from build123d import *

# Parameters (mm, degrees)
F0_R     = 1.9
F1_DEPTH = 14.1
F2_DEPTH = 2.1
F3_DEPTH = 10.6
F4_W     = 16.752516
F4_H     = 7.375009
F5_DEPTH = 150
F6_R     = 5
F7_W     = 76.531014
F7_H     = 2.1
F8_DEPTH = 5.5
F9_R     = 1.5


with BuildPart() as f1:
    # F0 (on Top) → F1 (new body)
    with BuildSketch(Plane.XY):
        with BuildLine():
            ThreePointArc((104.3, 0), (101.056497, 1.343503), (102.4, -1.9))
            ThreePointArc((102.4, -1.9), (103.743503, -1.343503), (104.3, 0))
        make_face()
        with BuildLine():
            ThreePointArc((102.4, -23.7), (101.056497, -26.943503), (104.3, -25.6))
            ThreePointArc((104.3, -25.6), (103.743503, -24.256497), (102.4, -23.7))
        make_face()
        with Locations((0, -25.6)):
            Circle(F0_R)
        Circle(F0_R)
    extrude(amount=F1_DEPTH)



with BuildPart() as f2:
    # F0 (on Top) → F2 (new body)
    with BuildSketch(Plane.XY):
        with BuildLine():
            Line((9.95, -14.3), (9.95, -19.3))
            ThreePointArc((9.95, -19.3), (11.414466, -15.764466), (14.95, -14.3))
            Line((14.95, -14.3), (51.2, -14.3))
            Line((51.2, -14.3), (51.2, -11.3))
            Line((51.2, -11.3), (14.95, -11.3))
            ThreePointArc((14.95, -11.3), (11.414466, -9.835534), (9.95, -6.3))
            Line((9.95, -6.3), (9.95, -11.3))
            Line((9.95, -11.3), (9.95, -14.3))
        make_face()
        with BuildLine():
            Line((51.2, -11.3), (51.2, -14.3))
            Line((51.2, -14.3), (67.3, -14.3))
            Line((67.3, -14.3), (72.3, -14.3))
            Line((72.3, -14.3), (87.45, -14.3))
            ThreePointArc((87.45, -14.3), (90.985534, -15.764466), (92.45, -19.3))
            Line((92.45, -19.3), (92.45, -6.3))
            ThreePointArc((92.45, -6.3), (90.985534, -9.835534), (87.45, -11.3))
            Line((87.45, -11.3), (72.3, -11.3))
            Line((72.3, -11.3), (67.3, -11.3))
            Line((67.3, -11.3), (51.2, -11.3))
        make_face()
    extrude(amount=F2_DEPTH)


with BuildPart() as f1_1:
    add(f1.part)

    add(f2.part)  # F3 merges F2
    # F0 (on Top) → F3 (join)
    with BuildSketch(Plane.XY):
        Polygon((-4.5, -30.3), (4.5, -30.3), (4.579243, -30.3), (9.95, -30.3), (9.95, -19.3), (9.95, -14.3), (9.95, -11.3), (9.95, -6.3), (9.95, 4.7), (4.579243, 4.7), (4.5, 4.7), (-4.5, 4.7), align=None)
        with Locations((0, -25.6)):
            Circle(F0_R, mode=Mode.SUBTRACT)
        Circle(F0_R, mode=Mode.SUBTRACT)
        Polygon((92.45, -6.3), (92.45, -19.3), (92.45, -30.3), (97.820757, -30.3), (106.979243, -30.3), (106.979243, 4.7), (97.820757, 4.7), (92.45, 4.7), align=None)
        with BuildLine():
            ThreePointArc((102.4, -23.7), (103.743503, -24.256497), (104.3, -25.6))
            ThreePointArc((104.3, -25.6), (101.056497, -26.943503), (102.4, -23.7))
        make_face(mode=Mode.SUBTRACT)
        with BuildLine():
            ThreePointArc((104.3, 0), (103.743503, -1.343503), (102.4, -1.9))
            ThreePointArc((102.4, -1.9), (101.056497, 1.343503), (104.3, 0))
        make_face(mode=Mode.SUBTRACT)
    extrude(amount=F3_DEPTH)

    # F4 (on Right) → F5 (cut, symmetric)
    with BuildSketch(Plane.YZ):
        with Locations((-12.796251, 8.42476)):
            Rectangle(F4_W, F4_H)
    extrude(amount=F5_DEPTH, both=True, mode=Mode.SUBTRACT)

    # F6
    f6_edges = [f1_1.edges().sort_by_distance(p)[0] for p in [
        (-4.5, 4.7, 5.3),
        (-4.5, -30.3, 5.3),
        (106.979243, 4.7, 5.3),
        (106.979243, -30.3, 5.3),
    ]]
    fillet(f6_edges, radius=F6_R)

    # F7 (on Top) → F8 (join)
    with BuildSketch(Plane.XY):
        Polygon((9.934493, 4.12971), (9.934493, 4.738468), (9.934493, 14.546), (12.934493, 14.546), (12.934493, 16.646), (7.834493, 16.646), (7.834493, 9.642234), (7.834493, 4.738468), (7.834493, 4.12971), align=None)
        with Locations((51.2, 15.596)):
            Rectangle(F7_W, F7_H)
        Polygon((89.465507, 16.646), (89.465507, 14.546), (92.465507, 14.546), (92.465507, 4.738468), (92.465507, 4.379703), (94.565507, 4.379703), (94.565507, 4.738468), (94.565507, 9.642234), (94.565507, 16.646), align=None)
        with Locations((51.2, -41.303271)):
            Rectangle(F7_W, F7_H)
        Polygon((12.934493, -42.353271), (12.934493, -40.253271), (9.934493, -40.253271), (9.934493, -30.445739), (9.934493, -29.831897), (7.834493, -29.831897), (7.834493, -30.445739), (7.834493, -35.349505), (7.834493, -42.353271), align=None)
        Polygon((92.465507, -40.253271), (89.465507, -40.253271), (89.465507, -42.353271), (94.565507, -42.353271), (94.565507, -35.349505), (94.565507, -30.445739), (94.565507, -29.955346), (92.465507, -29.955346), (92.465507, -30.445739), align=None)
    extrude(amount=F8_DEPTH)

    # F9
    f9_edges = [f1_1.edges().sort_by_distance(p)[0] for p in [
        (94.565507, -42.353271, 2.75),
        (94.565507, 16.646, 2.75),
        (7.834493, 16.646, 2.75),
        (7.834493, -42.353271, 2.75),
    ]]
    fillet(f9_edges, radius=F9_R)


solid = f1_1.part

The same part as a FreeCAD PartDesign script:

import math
import FreeCAD as App
import Part
import Sketcher
from FreeCAD import Vector
Q = App.Units.Quantity


def edges_at(feature, points):
    """Names of the edges that pass closest to the given points."""
    edges = feature.Shape.Edges
    near = lambda p: min(range(len(edges)), key=lambda i: edges[i].distToShape(Part.Vertex(*p))[0])
    return sorted({f"Edge{near(p) + 1}" for p in points})


def add_polygon(sketch, points):
    """Adds a closed chain of lines whose ends are joined by coincident constraints."""
    first, n = sketch.GeometryCount, len(points)
    for a, b in zip(points, points[1:] + points[:1]):
        sketch.addGeometry(Part.LineSegment(App.Vector(*a, 0), App.Vector(*b, 0)), False)
    for i in range(n):
        sketch.addConstraint(Sketcher.Constraint("Coincident", first + i, 2, first + (i + 1) % n, 1))

doc = App.newDocument("Part")
params = doc.addObject("Spreadsheet::Sheet", "Params")
for row, (alias, value) in enumerate([
    ("sketch1_diameter", "3.8 mm"),
    ("pad1_length", "14.1 mm"),
    ("sketch2_radius", "5 mm"),
    ("sketch2_height", "13 mm"),
    ("sketch2_width", "72.5 mm"),
    ("pad2_length", "2.1 mm"),
    ("sketch3_diameter", "3.8 mm"),
    ("sketch3_height", "35 mm"),
    ("sketch3_width", "14.45 mm"),
    ("pad3_length", "10.6 mm"),
    ("pocket1_length", "300 mm"),
    ("fillet_radius", "5 mm"),
    ("sketch5_width", "2.1 mm"),
    ("pad4_length", "5.5 mm"),
    ("fillet2_radius", "1.5 mm"),
], start=1):
    params.set(f"A{row}", alias)
    params.set(f"B{row}", "=" + value)
    params.setAlias(f"B{row}", alias)

body = doc.addObject("PartDesign::Body", "Body")
body.AllowCompound = True

# Sketch on XY plane
sketch1 = doc.addObject("Sketcher::SketchObject", "Sketch")
body.addObject(sketch1)
sketch1.AttachmentSupport = (doc.XY_Plane, [""])
sketch1.MapMode = "FlatFace"
sketch1.addGeometry([
    Part.ArcOfCircle(Part.Circle(Vector(102.4, 0, 0), Vector(0, 0, 1), 1.9), math.radians(0), math.radians(270)),  # 0
    Part.ArcOfCircle(Part.Circle(Vector(102.4, 0, 0), Vector(0, 0, 1), 1.9), math.radians(-90), math.radians(0)),  # 1
    Part.ArcOfCircle(Part.Circle(Vector(102.4, -25.6, 0), Vector(0, 0, 1), 1.9), math.radians(90), math.radians(360)),  # 2
    Part.ArcOfCircle(Part.Circle(Vector(102.4, -25.6, 0), Vector(0, 0, 1), 1.9), math.radians(0), math.radians(90)),  # 3
    Part.Circle(Vector(0, -25.6, 0), Vector(0, 0, 1), 1.9),  # 4
    Part.Circle(Vector(0, 0, 0), Vector(0, 0, 1), 1.9),  # 5
], False)
sketch1.addConstraint([
    Sketcher.Constraint("Tangent", 0, 1, 1, 2),
    Sketcher.Constraint("Coincident", 1, 1, 0, 2),
    Sketcher.Constraint("Tangent", 2, 1, 3, 2),
    Sketcher.Constraint("Coincident", 3, 1, 2, 2),
    Sketcher.Constraint("Coincident", 5, 3, -1, 1),
    Sketcher.Constraint("Equal", 1, 2),
    Sketcher.Constraint("Equal", 3, 4),
    Sketcher.Constraint("Equal", 4, 5),
    Sketcher.Constraint("PointOnObject", 0, 3, -1),
    Sketcher.Constraint("PointOnObject", 4, 3, -2),
    Sketcher.Constraint("PointOnObject", 0, 1, -1),
    Sketcher.Constraint("Horizontal", 3, 3, 4, 3),
    Sketcher.Constraint("Horizontal", 4, 3, 3, 1),
    Sketcher.Constraint("Vertical", 1, 3, 2, 3),
    Sketcher.Constraint("Vertical", 3, 3, 1, 1),
    Sketcher.Constraint("Vertical", 1, 1, 2, 1),
    Sketcher.Constraint("Diameter", 4, Q("3.8 mm")),
    Sketcher.Constraint("DistanceX", -1, 1, 0, 3, Q("102.4 mm")),
    Sketcher.Constraint("DistanceY", 2, 3, -1, 1, Q("25.6 mm")),
])
sketch1.setExpression("Constraints[16]", "Params.sketch1_diameter")
pad1 = doc.addObject("PartDesign::Pad", "Pad")
body.addObject(pad1)
pad1.Profile = sketch1
pad1.setExpression("Length", "Params.pad1_length")
body2 = doc.addObject("PartDesign::Body", "Body001")

# Sketch on XY plane
sketch2 = doc.addObject("Sketcher::SketchObject", "Sketch001")
body2.addObject(sketch2)
sketch2.AttachmentSupport = (doc.getObject("XY_Plane001"), [""])
sketch2.MapMode = "FlatFace"
sketch2.addGeometry([
    Part.ArcOfCircle(Part.Circle(Vector(14.9, -19.3, 0), Vector(0, 0, 1), 5), math.radians(90), math.radians(180)),  # 0
    Part.LineSegment(Vector(14.9, -14.3, 0), Vector(87.5, -14.3, 0)),  # 1
    Part.ArcOfCircle(Part.Circle(Vector(87.5, -19.3, 0), Vector(0, 0, 1), 5), math.radians(0), math.radians(90)),  # 2
    Part.LineSegment(Vector(92.5, -19.3, 0), Vector(92.5, -6.3, 0)),  # 3
    Part.ArcOfCircle(Part.Circle(Vector(87.5, -6.3, 0), Vector(0, 0, 1), 5), math.radians(-90), math.radians(0)),  # 4
    Part.LineSegment(Vector(87.5, -11.3, 0), Vector(14.9, -11.3, 0)),  # 5
    Part.ArcOfCircle(Part.Circle(Vector(14.9, -6.3, 0), Vector(0, 0, 1), 5), math.radians(180), math.radians(270)),  # 6
    Part.LineSegment(Vector(9.9, -6.3, 0), Vector(9.9, -19.3, 0)),  # 7
], False)
sketch2.addConstraint([
    Sketcher.Constraint("Tangent", 0, 1, 1, 1),
    Sketcher.Constraint("Tangent", 1, 2, 2, 2),
    Sketcher.Constraint("Tangent", 2, 1, 3, 1),
    Sketcher.Constraint("Tangent", 3, 2, 4, 2),
    Sketcher.Constraint("Tangent", 4, 1, 5, 1),
    Sketcher.Constraint("Tangent", 5, 2, 6, 2),
    Sketcher.Constraint("Tangent", 6, 1, 7, 1),
    Sketcher.Constraint("Tangent", 7, 2, 0, 2),
    Sketcher.Constraint("Horizontal", 1),
    Sketcher.Constraint("Vertical", 3),
    Sketcher.Constraint("Horizontal", 5),
    Sketcher.Constraint("Vertical", 7),
    Sketcher.Constraint("Equal", 0, 2),
    Sketcher.Constraint("Equal", 2, 4),
    Sketcher.Constraint("Equal", 4, 6),
    Sketcher.Constraint("Radius", 0, Q("5 mm")),
    Sketcher.Constraint("DistanceY", 3, 1, 3, 2, Q("13 mm")),
    Sketcher.Constraint("DistanceX", 1, 1, 1, 2, Q("72.5 mm")),
    Sketcher.Constraint("DistanceY", 0, 3, -1, 1, Q("19.3 mm")),
    Sketcher.Constraint("DistanceX", -1, 1, 0, 3, Q("14.95 mm")),
])
sketch2.setExpression("Constraints[15]", "Params.sketch2_radius")
sketch2.setExpression("Constraints[16]", "Params.sketch2_height")
sketch2.setExpression("Constraints[17]", "Params.sketch2_width")
pad2 = doc.addObject("PartDesign::Pad", "Pad001")
body2.addObject(pad2)
pad2.Profile = sketch2
pad2.setExpression("Length", "Params.pad2_length")
body.AllowCompound = True
doc.recompute()

boolean = doc.addObject("PartDesign::Boolean", "Boolean")
body.addObject(boolean)
boolean.Type = "Fuse"
boolean.addObjects([body2])

# Sketch on XY plane
sketch3 = doc.addObject("Sketcher::SketchObject", "Sketch002")
body.addObject(sketch3)
sketch3.AttachmentSupport = (doc.XY_Plane, [""])
sketch3.MapMode = "FlatFace"
add_polygon(sketch3, [(-4.5, -30.3), (9.9, -30.3), (9.9, 4.7), (-4.5, 4.7)])  # lines 0-3
sketch3.addGeometry(Part.Circle(Vector(0, -25.6, 0), Vector(0, 0, 1), 1.9), False)  # 4
sketch3.addGeometry(Part.Circle(Vector(0, 0, 0), Vector(0, 0, 1), 1.9), False)  # 5
add_polygon(sketch3, [(92.5, -30.3), (107, -30.3), (107, 4.7), (92.5, 4.7)])  # lines 6-9
sketch3.addGeometry(Part.ArcOfCircle(Part.Circle(Vector(102.4, -25.6, 0), Vector(0, 0, 1), 1.9), math.radians(90), math.radians(360)), False)  # 10
sketch3.addGeometry(Part.ArcOfCircle(Part.Circle(Vector(102.4, -25.6, 0), Vector(0, 0, 1), 1.9), math.radians(0), math.radians(90)), False)  # 11
sketch3.addGeometry(Part.ArcOfCircle(Part.Circle(Vector(102.4, 0, 0), Vector(0, 0, 1), 1.9), math.radians(0), math.radians(270)), False)  # 12
sketch3.addGeometry(Part.ArcOfCircle(Part.Circle(Vector(102.4, 0, 0), Vector(0, 0, 1), 1.9), math.radians(-90), math.radians(0)), False)  # 13
sketch3.addConstraint([
    Sketcher.Constraint("Tangent", 10, 1, 11, 2),
    Sketcher.Constraint("Coincident", 11, 1, 10, 2),
    Sketcher.Constraint("Tangent", 12, 1, 13, 2),
    Sketcher.Constraint("Coincident", 13, 1, 12, 2),
    Sketcher.Constraint("Horizontal", 0),
    Sketcher.Constraint("Vertical", 1),
    Sketcher.Constraint("Horizontal", 2),
    Sketcher.Constraint("Vertical", 3),
    Sketcher.Constraint("Horizontal", 6),
    Sketcher.Constraint("Vertical", 7),
    Sketcher.Constraint("Horizontal", 8),
    Sketcher.Constraint("Vertical", 9),
    Sketcher.Constraint("Coincident", 5, 3, -1, 1),
    Sketcher.Constraint("Equal", 4, 5),
    Sketcher.Constraint("Equal", 5, 10),
    Sketcher.Constraint("Equal", 11, 12),
    Sketcher.Constraint("PointOnObject", 4, 3, -2),
    Sketcher.Constraint("PointOnObject", 12, 3, -1),
    Sketcher.Constraint("PointOnObject", 12, 1, -1),
    Sketcher.Constraint("Horizontal", 4, 3, 10, 3),
    Sketcher.Constraint("Horizontal", 3, 2, 6, 2),
    Sketcher.Constraint("Horizontal", 2, 2, 7, 2),
    Sketcher.Constraint("Horizontal", 10, 3, 11, 1),
    Sketcher.Constraint("Vertical", 11, 3, 12, 3),
    Sketcher.Constraint("Vertical", 13, 3, 10, 1),
    Sketcher.Constraint("Vertical", 10, 1, 13, 1),
    Sketcher.Constraint("Diameter", 4, Q("3.8 mm")),
    Sketcher.Constraint("DistanceY", 1, 1, 1, 2, Q("35 mm")),
    Sketcher.Constraint("DistanceX", 0, 1, 0, 2, Q("14.45 mm")),
    Sketcher.Constraint("DistanceY", 4, 3, -1, 1, Q("25.6 mm")),
    Sketcher.Constraint("DistanceX", -1, 1, 10, 3, Q("102.4 mm")),
    Sketcher.Constraint("DistanceY", 0, 2, -1, 1, Q("30.3 mm")),
    Sketcher.Constraint("DistanceX", 2, 2, -1, 1, Q("4.5 mm")),
    Sketcher.Constraint("DistanceX", -1, 1, 8, 2, Q("92.45 mm")),
    Sketcher.Constraint("DistanceX", 6, 1, 6, 2, Q("14.529243 mm")),
])
sketch3.setExpression("Constraints[34]", "Params.sketch3_diameter")
sketch3.setExpression("Constraints[35]", "Params.sketch3_height")
sketch3.setExpression("Constraints[36]", "Params.sketch3_width")
pad3 = doc.addObject("PartDesign::Pad", "Pad002")
body.addObject(pad3)
pad3.Profile = sketch3
pad3.setExpression("Length", "Params.pad3_length")

# Sketch on YZ plane
sketch4 = doc.addObject("Sketcher::SketchObject", "Sketch003")
body.addObject(sketch4)
sketch4.AttachmentSupport = (doc.YZ_Plane, [""])
sketch4.MapMode = "FlatFace"
add_polygon(sketch4, [(-21, 12), (-21, 5), (-4, 5), (-4, 12)])  # lines 0-3
sketch4.addConstraint([
    Sketcher.Constraint("Vertical", 0),
    Sketcher.Constraint("Horizontal", 1),
    Sketcher.Constraint("Vertical", 2),
    Sketcher.Constraint("Horizontal", 3),
    Sketcher.Constraint("DistanceY", 0, 2, 0, 1, Q("7.375009 mm")),
    Sketcher.Constraint("DistanceX", 1, 1, 1, 2, Q("16.752516 mm")),
    Sketcher.Constraint("DistanceX", 0, 2, -1, 1, Q("21.172509 mm")),
    Sketcher.Constraint("DistanceY", -1, 1, 0, 2, Q("4.737255 mm")),
])
pocket1 = doc.addObject("PartDesign::Pocket", "Pocket")
body.addObject(pocket1)
pocket1.Profile = sketch4
pocket1.setExpression("Length", "Params.pocket1_length")
pocket1.Midplane = True
doc.recompute()

fillet = doc.addObject("PartDesign::Fillet", "Fillet")
body.addObject(fillet)
fillet.Base = (pocket1, edges_at(pocket1, [
    (-4.5, 4.7, 5.3),
    (-4.5, -30.3, 5.3),
    (106.979, 4.7, 5.3),
    (106.979, -30.3, 5.3),
]))
fillet.setExpression("Radius", "Params.fillet_radius")

# Sketch on XY plane
sketch5 = doc.addObject("Sketcher::SketchObject", "Sketch004")
body.addObject(sketch5)
sketch5.AttachmentSupport = (doc.XY_Plane, [""])
sketch5.MapMode = "FlatFace"
add_polygon(sketch5, [(9.9, 4.1), (9.9, 14.5), (92.5, 14.5), (92.5, 4.4), (94.6, 4.4), (94.6, 16.6), (7.8, 16.6), (7.8, 4.1)])  # lines 0-7
add_polygon(sketch5, [(9.9, -40.3), (9.9, -29.8), (7.8, -29.8), (7.8, -42.4), (94.6, -42.4), (94.6, -30), (92.5, -30), (92.5, -40.3)])  # lines 8-15
sketch5.addConstraint([
    Sketcher.Constraint("Vertical", 0),
    Sketcher.Constraint("Horizontal", 1),
    Sketcher.Constraint("Vertical", 2),
    Sketcher.Constraint("Horizontal", 3),
    Sketcher.Constraint("Vertical", 4),
    Sketcher.Constraint("Horizontal", 5),
    Sketcher.Constraint("Vertical", 6),
    Sketcher.Constraint("Horizontal", 7),
    Sketcher.Constraint("Vertical", 8),
    Sketcher.Constraint("Horizontal", 9),
    Sketcher.Constraint("Vertical", 10),
    Sketcher.Constraint("Horizontal", 11),
    Sketcher.Constraint("Vertical", 12),
    Sketcher.Constraint("Horizontal", 13),
    Sketcher.Constraint("Vertical", 14),
    Sketcher.Constraint("Horizontal", 15),
    Sketcher.Constraint("Vertical", 7, 2, 8, 2),
    Sketcher.Constraint("Vertical", 6, 2, 9, 2),
    Sketcher.Constraint("Vertical", 4, 2, 11, 2),
    Sketcher.Constraint("Vertical", 2, 2, 13, 2),
    Sketcher.Constraint("Equal", 3, 7),
    Sketcher.Constraint("DistanceX", 3, 1, 3, 2, Q("2.1 mm")),
    Sketcher.Constraint("DistanceY", 1, 2, 4, 2, Q("2.1 mm")),
    Sketcher.Constraint("DistanceY", 11, 2, 14, 2, Q("2.1 mm")),
    Sketcher.Constraint("DistanceY", -1, 1, 0, 2, Q("14.546 mm")),
    Sketcher.Constraint("DistanceY", 0, 1, 0, 2, Q("10.41629 mm")),
    Sketcher.Constraint("DistanceY", 8, 2, 2, 2, Q("34.2116 mm")),
    Sketcher.Constraint("DistanceX", 1, 1, 1, 2, Q("82.531014 mm")),
    Sketcher.Constraint("DistanceY", 2, 2, 2, 1, Q("10.166297 mm")),
    Sketcher.Constraint("DistanceY", 8, 1, 8, 2, Q("10.421374 mm")),
    Sketcher.Constraint("DistanceY", 12, 1, 12, 2, Q("12.397925 mm")),
    Sketcher.Constraint("DistanceX", -1, 1, 0, 2, Q("9.934493 mm")),
])
sketch5.setExpression("Constraints[37]", "Params.sketch5_width")
pad4 = doc.addObject("PartDesign::Pad", "Pad003")
body.addObject(pad4)
pad4.Profile = sketch5
pad4.setExpression("Length", "Params.pad4_length")
doc.recompute()

fillet2 = doc.addObject("PartDesign::Fillet", "Fillet001")
body.addObject(fillet2)
fillet2.Base = (pad4, edges_at(pad4, [
    (94.566, -42.353, 2.75),
    (94.566, 16.646, 2.75),
    (7.834, 16.646, 2.75),
    (7.834, -42.353, 2.75),
]))
fillet2.setExpression("Radius", "Params.fillet2_radius")

doc.recompute()
